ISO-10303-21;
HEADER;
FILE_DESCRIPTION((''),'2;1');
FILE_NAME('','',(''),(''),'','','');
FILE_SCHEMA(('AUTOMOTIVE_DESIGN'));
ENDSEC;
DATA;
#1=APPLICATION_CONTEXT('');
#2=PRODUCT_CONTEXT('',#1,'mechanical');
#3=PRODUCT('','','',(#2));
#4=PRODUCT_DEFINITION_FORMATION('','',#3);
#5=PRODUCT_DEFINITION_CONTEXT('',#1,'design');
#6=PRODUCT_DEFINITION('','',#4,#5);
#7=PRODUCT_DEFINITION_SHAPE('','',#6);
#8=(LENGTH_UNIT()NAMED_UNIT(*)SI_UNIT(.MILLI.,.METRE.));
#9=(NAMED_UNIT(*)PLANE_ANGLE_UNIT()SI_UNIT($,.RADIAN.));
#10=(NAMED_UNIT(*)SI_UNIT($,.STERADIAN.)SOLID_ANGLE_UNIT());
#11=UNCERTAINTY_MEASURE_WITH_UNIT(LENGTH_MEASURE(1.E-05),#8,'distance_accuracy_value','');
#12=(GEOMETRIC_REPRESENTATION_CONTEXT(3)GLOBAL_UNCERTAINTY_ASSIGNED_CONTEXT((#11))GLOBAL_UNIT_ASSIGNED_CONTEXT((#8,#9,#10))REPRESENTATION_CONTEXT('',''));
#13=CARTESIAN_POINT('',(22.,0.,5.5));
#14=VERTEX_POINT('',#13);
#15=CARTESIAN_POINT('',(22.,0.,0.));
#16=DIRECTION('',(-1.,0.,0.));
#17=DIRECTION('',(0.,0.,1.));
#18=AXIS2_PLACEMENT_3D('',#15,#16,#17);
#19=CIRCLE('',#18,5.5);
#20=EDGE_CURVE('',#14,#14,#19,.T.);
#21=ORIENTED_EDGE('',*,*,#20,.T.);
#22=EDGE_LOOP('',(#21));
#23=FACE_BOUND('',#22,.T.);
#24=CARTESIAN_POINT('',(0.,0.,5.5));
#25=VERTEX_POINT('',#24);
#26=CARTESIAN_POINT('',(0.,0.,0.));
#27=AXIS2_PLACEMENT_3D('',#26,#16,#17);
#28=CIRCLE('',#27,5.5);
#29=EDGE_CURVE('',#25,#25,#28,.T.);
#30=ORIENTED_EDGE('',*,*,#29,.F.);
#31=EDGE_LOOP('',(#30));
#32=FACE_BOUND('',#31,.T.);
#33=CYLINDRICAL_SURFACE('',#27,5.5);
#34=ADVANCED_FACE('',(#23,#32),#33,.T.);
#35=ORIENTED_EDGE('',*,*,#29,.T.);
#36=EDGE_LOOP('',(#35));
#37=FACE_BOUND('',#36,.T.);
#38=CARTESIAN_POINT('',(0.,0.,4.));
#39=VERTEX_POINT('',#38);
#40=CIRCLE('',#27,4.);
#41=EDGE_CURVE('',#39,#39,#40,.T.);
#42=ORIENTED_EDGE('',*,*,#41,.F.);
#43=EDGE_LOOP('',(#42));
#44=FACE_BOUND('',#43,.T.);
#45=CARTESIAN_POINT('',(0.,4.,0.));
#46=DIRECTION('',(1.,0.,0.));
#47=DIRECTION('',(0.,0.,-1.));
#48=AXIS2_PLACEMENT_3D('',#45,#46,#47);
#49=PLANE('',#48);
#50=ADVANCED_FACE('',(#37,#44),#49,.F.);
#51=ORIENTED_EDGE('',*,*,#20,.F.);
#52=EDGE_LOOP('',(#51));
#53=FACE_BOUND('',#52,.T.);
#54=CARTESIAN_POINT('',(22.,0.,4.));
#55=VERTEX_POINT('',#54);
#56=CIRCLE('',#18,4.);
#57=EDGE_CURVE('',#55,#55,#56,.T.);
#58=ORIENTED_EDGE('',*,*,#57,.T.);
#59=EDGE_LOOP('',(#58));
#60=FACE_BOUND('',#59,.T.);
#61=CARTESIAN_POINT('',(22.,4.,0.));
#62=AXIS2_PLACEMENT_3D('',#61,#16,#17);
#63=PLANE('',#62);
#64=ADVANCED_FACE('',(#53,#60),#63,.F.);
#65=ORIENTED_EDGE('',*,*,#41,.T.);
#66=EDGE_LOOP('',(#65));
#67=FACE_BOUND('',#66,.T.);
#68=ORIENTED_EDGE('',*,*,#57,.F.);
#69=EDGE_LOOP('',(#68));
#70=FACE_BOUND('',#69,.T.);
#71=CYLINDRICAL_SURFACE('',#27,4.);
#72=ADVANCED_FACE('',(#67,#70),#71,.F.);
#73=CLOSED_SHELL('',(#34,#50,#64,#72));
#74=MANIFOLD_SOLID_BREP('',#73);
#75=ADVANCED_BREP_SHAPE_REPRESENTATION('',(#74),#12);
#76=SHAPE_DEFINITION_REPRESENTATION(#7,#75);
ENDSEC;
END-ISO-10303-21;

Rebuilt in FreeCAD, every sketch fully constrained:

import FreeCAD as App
import Part
import Sketcher

V = App.Vector
Q = App.Units.Quantity


def add_polygon(sketch, points):
    """Adds a closed chain of lines whose ends are joined by coincident constraints."""
    first, n = sketch.GeometryCount, len(points)
    for a, b in zip(points, points[1:] + points[:1]):
        sketch.addGeometry(Part.LineSegment(App.Vector(*a, 0), App.Vector(*b, 0)), False)
    for i in range(n):
        sketch.addConstraint(Sketcher.Constraint("Coincident", first + i, 2, first + (i + 1) % n, 1))

doc = App.newDocument("Part")
body = doc.addObject("PartDesign::Body", "Body")

# Sketch on XY plane
sketch1 = body.newObject("Sketcher::SketchObject", "Sketch")
sketch1.AttachmentSupport = (doc.getObject("XY_Plane"), [""])
sketch1.MapMode = "FlatFace"
add_polygon(sketch1, [(0, 5.5), (0, 4), (22, 4), (22, 5.5)])  # lines 0-3
sketch1.addConstraint([
    Sketcher.Constraint("Vertical", 0),
    Sketcher.Constraint("Horizontal", 1),
    Sketcher.Constraint("Vertical", 2),
    Sketcher.Constraint("Horizontal", 3),
    Sketcher.Constraint("PointOnObject", 0, 2, -2),
    Sketcher.Constraint("DistanceX", 1, 1, 1, 2, Q("22 mm")),
    Sketcher.Constraint("DistanceY", 0, 2, 0, 1, Q("1.5 mm")),
    Sketcher.Constraint("DistanceY", -1, 1, 0, 2, Q("4 mm")),
])
revolution = body.newObject("PartDesign::Revolution", "Revolution")
revolution.Profile = sketch1
revolution.ReferenceAxis = (sketch1, ["H_Axis"])
revolution.Angle = 360

doc.recompute()
